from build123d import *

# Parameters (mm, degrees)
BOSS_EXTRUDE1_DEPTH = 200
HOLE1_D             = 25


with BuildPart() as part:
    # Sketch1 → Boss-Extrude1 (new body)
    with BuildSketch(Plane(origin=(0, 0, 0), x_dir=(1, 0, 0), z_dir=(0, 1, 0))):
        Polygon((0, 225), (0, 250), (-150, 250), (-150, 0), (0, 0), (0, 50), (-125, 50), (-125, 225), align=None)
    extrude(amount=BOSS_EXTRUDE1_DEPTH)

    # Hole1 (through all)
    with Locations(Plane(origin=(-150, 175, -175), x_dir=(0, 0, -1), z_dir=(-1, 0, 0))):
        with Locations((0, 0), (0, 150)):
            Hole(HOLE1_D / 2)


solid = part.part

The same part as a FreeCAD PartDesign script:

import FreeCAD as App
import Part
import Sketcher

V = App.Vector


def add_polygon(sketch, points):
    """Adds a closed chain of lines whose ends are joined by coincident constraints."""
    first, n = sketch.GeometryCount, len(points)
    for a, b in zip(points, points[1:] + points[:1]):
        sketch.addGeometry(Part.LineSegment(App.Vector(*a, 0), App.Vector(*b, 0)), False)
    for i in range(n):
        sketch.addConstraint(Sketcher.Constraint("Coincident", first + i, 2, first + (i + 1) % n, 1))

doc = App.newDocument("Part")
params = doc.addObject("Spreadsheet::Sheet", "Params")
for row, (alias, value) in enumerate([
    ("sketch1_width", "150 mm"),
    ("sketch1_width2", "125 mm"),
    ("sketch1_height", "25 mm"),
    ("sketch1_height2", "250 mm"),
    ("sketch1_height3", "50 mm"),
    ("pad1_length", "200 mm"),
    ("sketch2_diameter", "25 mm"),
    ("hole_diameter", "25 mm"),
], start=1):
    params.set(f"A{row}", alias)
    params.set(f"B{row}", "=" + value)
    params.setAlias(f"B{row}", alias)

body = doc.addObject("PartDesign::Body", "Body")

sketch1 = doc.addObject("Sketcher::SketchObject", "Sketch")
body.addObject(sketch1)
sketch1.AttachmentSupport = (doc.XZ_Plane, [""])
sketch1.MapMode = "FlatFace"
add_polygon(sketch1, [(0, -225), (0, -250), (-150, -250), (-150, 0), (0, 0), (0, -50), (-125, -50), (-125, -225)])
sketch1.addConstraint([
    Sketcher.Constraint("Vertical", 0),
    Sketcher.Constraint("Horizontal", 1),
    Sketcher.Constraint("Vertical", 2),
    Sketcher.Constraint("Horizontal", 3),
    Sketcher.Constraint("Vertical", 4),
    Sketcher.Constraint("Horizontal", 5),
    Sketcher.Constraint("Vertical", 6),
    Sketcher.Constraint("Horizontal", 7),
    Sketcher.Constraint("Coincident", 3, 2, -1, 1),
    Sketcher.Constraint("PointOnObject", 0, 2, -2),
    Sketcher.Constraint("DistanceX", 1, 2, 1, 1, 150.0),
    Sketcher.Constraint("DistanceX", 5, 2, 5, 1, 125.0),
    Sketcher.Constraint("DistanceY", 0, 2, 0, 1, 25.0),
    Sketcher.Constraint("DistanceY", 2, 1, 2, 2, 250.0),
    Sketcher.Constraint("DistanceY", 4, 2, 4, 1, 50.0),
])
sketch1.setExpression("Constraints[18]", "Params.sketch1_width")
sketch1.setExpression("Constraints[19]", "Params.sketch1_width2")
sketch1.setExpression("Constraints[20]", "Params.sketch1_height")
sketch1.setExpression("Constraints[21]", "Params.sketch1_height2")
sketch1.setExpression("Constraints[22]", "Params.sketch1_height3")
pad1 = doc.addObject("PartDesign::Pad", "Pad")
body.addObject(pad1)
pad1.Profile = sketch1
pad1.setExpression("Length", "Params.pad1_length")
pad1.Reversed = True

sketch2 = doc.addObject("Sketcher::SketchObject", "Sketch001")
body.addObject(sketch2)
sketch2.AttachmentSupport = (doc.YZ_Plane, [""])
sketch2.MapMode = "FlatFace"
sketch2.AttachmentOffset = App.Placement(V(0, 0, -150), App.Rotation())
sketch2.addGeometry([
    Part.Circle(V(175, -175, 0), V(0, 0, 1), 12),
    Part.Circle(V(25, -175, 0), V(0, 0, 1), 12),
], False)
sketch2.addConstraint([
    Sketcher.Constraint("Equal", 0, 1),
    Sketcher.Constraint("Horizontal", 0, 3, 1, 3),
    Sketcher.Constraint("Diameter", 0, 25.0),
    Sketcher.Constraint("DistanceX", -1, 1, 0, 3, 175.0),
    Sketcher.Constraint("DistanceY", 0, 3, -1, 1, 175.0),
    Sketcher.Constraint("DistanceX", -1, 1, 1, 3, 25.0),
])
sketch2.setExpression("Constraints[2]", "Params.sketch2_diameter")
doc.recompute()
hole = doc.addObject("PartDesign::Hole", "Hole")
body.addObject(hole)
hole.Profile = sketch2
hole.ThreadType = "None"
hole.setExpression("Diameter", "Params.hole_diameter")
hole.DepthType = "ThroughAll"
hole.Reversed = True

doc.recompute()
